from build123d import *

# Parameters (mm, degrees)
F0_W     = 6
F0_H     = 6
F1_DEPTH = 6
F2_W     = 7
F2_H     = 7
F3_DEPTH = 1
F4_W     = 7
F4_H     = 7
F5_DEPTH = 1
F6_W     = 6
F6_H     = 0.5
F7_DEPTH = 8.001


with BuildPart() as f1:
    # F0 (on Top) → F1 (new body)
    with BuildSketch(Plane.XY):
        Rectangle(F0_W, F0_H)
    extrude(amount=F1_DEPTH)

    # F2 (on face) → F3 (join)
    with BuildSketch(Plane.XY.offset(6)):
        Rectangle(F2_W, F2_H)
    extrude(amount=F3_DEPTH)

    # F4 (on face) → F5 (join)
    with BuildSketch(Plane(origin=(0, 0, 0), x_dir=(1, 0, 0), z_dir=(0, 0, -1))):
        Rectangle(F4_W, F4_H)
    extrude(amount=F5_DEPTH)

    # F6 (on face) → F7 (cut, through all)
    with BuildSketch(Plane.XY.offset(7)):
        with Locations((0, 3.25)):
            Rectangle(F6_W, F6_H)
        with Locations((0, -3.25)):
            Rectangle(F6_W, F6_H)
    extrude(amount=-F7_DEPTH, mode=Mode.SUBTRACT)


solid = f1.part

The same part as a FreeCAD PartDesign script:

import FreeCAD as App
import Part
import Sketcher

doc = App.newDocument("Part")
body = doc.addObject("PartDesign::Body", "Body")

sketch1 = body.newObject("Sketcher::SketchObject", "Sketch")
sketch1.AttachmentSupport = (doc.getObject("XY_Plane"), [""])
sketch1.MapMode = "FlatFace"
sketch1.addGeometry([
    Part.LineSegment(App.Vector(-3, 3, 0), App.Vector(-3, -3, 0)),
    Part.LineSegment(App.Vector(-3, -3, 0), App.Vector(3, -3, 0)),
    Part.LineSegment(App.Vector(3, -3, 0), App.Vector(3, 3, 0)),
    Part.LineSegment(App.Vector(3, 3, 0), App.Vector(-3, 3, 0)),
], False)
sketch1.addConstraint([
    Sketcher.Constraint("Coincident", 0, 2, 1, 1),
    Sketcher.Constraint("Coincident", 1, 2, 2, 1),
    Sketcher.Constraint("Coincident", 2, 2, 3, 1),
    Sketcher.Constraint("Coincident", 3, 2, 0, 1),
    Sketcher.Constraint("Vertical", 0),
    Sketcher.Constraint("Horizontal", 1),
    Sketcher.Constraint("Vertical", 2),
    Sketcher.Constraint("Horizontal", 3),
    Sketcher.Constraint("Symmetric", 0, 2, 2, 2, -1, 1),
    Sketcher.Constraint("Equal", 3, 0),
    Sketcher.Constraint("DistanceX", 1, 1, 1, 2, 6.0),
])
pad1 = body.newObject("PartDesign::Pad", "Pad")
pad1.Profile = sketch1
pad1.Length = 6

sketch2 = body.newObject("Sketcher::SketchObject", "Sketch001")
sketch2.AttachmentSupport = (doc.getObject("XY_Plane"), [""])
sketch2.MapMode = "FlatFace"
sketch2.AttachmentOffset = App.Placement(App.Vector(0, 0, 6), App.Rotation())
sketch2.addGeometry([
    Part.LineSegment(App.Vector(-3.5, 3.5, 0), App.Vector(-3.5, -3.5, 0)),
    Part.LineSegment(App.Vector(-3.5, -3.5, 0), App.Vector(3.5, -3.5, 0)),
    Part.LineSegment(App.Vector(3.5, -3.5, 0), App.Vector(3.5, 3.5, 0)),
    Part.LineSegment(App.Vector(3.5, 3.5, 0), App.Vector(-3.5, 3.5, 0)),
], False)
sketch2.addConstraint([
    Sketcher.Constraint("Coincident", 0, 2, 1, 1),
    Sketcher.Constraint("Coincident", 1, 2, 2, 1),
    Sketcher.Constraint("Coincident", 2, 2, 3, 1),
    Sketcher.Constraint("Coincident", 3, 2, 0, 1),
    Sketcher.Constraint("Vertical", 0),
    Sketcher.Constraint("Horizontal", 1),
    Sketcher.Constraint("Vertical", 2),
    Sketcher.Constraint("Horizontal", 3),
    Sketcher.Constraint("Symmetric", 0, 2, 2, 2, -1, 1),
    Sketcher.Constraint("Equal", 3, 0),
    Sketcher.Constraint("DistanceX", 1, 1, 1, 2, 7.0),
])
pad2 = body.newObject("PartDesign::Pad", "Pad001")
pad2.Profile = sketch2
pad2.Length = 1

sketch3 = body.newObject("Sketcher::SketchObject", "Sketch002")
sketch3.AttachmentSupport = (doc.getObject("XY_Plane"), [""])
sketch3.MapMode = "FlatFace"
sketch3.addGeometry([
    Part.LineSegment(App.Vector(-3.5, -3.5, 0), App.Vector(-3.5, 3.5, 0)),
    Part.LineSegment(App.Vector(-3.5, 3.5, 0), App.Vector(3.5, 3.5, 0)),
    Part.LineSegment(App.Vector(3.5, 3.5, 0), App.Vector(3.5, -3.5, 0)),
    Part.LineSegment(App.Vector(3.5, -3.5, 0), App.Vector(-3.5, -3.5, 0)),
], False)
sketch3.addConstraint([
    Sketcher.Constraint("Coincident", 0, 2, 1, 1),
    Sketcher.Constraint("Coincident", 1, 2, 2, 1),
    Sketcher.Constraint("Coincident", 2, 2, 3, 1),
    Sketcher.Constraint("Coincident", 3, 2, 0, 1),
    Sketcher.Constraint("Vertical", 0),
    Sketcher.Constraint("Horizontal", 1),
    Sketcher.Constraint("Vertical", 2),
    Sketcher.Constraint("Horizontal", 3),
    Sketcher.Constraint("Symmetric", 0, 2, 2, 2, -1, 1),
    Sketcher.Constraint("Equal", 3, 0),
    Sketcher.Constraint("DistanceX", 1, 1, 1, 2, 7.0),
])
pad3 = body.newObject("PartDesign::Pad", "Pad002")
pad3.Profile = sketch3
pad3.Length = 1
pad3.Reversed = True

sketch4 = body.newObject("Sketcher::SketchObject", "Sketch003")
sketch4.AttachmentSupport = (doc.getObject("XY_Plane"), [""])
sketch4.MapMode = "FlatFace"
sketch4.AttachmentOffset = App.Placement(App.Vector(0, 0, 7), App.Rotation())
sketch4.addGeometry([
    Part.LineSegment(App.Vector(-3, 3.5, 0), App.Vector(-3, 3, 0)),
    Part.LineSegment(App.Vector(-3, 3, 0), App.Vector(3, 3, 0)),
    Part.LineSegment(App.Vector(3, 3, 0), App.Vector(3, 3.5, 0)),
    Part.LineSegment(App.Vector(3, 3.5, 0), App.Vector(-3, 3.5, 0)),
    Part.LineSegment(App.Vector(-3, -3, 0), App.Vector(-3, -3.5, 0)),
    Part.LineSegment(App.Vector(-3, -3.5, 0), App.Vector(3, -3.5, 0)),
    Part.LineSegment(App.Vector(3, -3.5, 0), App.Vector(3, -3, 0)),
    Part.LineSegment(App.Vector(3, -3, 0), App.Vector(-3, -3, 0)),
], False)
sketch4.addConstraint([
    Sketcher.Constraint("Coincident", 0, 2, 1, 1),
    Sketcher.Constraint("Coincident", 1, 2, 2, 1),
    Sketcher.Constraint("Coincident", 2, 2, 3, 1),
    Sketcher.Constraint("Coincident", 3, 2, 0, 1),
    Sketcher.Constraint("Coincident", 4, 2, 5, 1),
    Sketcher.Constraint("Coincident", 5, 2, 6, 1),
    Sketcher.Constraint("Coincident", 6, 2, 7, 1),
    Sketcher.Constraint("Coincident", 7, 2, 4, 1),
    Sketcher.Constraint("Vertical", 0),
    Sketcher.Constraint("Horizontal", 1),
    Sketcher.Constraint("Vertical", 2),
    Sketcher.Constraint("Horizontal", 3),
    Sketcher.Constraint("Vertical", 4),
    Sketcher.Constraint("Horizontal", 5),
    Sketcher.Constraint("Vertical", 6),
    Sketcher.Constraint("Horizontal", 7),
    Sketcher.Constraint("Symmetric", 2, 2, 4, 2, -1, 1),
    Sketcher.Constraint("Symmetric", 0, 2, 6, 2, -1, 1),
    Sketcher.Constraint("Vertical", 3, 2, 4, 2),
    Sketcher.Constraint("DistanceX", 1, 1, 1, 2, 6.0),
    Sketcher.Constraint("DistanceY", 0, 2, 0, 1, 0.5),
    Sketcher.Constraint("DistanceY", -1, 1, 0, 2, 3.0),
])
pocket1 = body.newObject("PartDesign::Pocket", "Pocket")
pocket1.Profile = sketch4
pocket1.Type = "ThroughAll"

doc.recompute()
